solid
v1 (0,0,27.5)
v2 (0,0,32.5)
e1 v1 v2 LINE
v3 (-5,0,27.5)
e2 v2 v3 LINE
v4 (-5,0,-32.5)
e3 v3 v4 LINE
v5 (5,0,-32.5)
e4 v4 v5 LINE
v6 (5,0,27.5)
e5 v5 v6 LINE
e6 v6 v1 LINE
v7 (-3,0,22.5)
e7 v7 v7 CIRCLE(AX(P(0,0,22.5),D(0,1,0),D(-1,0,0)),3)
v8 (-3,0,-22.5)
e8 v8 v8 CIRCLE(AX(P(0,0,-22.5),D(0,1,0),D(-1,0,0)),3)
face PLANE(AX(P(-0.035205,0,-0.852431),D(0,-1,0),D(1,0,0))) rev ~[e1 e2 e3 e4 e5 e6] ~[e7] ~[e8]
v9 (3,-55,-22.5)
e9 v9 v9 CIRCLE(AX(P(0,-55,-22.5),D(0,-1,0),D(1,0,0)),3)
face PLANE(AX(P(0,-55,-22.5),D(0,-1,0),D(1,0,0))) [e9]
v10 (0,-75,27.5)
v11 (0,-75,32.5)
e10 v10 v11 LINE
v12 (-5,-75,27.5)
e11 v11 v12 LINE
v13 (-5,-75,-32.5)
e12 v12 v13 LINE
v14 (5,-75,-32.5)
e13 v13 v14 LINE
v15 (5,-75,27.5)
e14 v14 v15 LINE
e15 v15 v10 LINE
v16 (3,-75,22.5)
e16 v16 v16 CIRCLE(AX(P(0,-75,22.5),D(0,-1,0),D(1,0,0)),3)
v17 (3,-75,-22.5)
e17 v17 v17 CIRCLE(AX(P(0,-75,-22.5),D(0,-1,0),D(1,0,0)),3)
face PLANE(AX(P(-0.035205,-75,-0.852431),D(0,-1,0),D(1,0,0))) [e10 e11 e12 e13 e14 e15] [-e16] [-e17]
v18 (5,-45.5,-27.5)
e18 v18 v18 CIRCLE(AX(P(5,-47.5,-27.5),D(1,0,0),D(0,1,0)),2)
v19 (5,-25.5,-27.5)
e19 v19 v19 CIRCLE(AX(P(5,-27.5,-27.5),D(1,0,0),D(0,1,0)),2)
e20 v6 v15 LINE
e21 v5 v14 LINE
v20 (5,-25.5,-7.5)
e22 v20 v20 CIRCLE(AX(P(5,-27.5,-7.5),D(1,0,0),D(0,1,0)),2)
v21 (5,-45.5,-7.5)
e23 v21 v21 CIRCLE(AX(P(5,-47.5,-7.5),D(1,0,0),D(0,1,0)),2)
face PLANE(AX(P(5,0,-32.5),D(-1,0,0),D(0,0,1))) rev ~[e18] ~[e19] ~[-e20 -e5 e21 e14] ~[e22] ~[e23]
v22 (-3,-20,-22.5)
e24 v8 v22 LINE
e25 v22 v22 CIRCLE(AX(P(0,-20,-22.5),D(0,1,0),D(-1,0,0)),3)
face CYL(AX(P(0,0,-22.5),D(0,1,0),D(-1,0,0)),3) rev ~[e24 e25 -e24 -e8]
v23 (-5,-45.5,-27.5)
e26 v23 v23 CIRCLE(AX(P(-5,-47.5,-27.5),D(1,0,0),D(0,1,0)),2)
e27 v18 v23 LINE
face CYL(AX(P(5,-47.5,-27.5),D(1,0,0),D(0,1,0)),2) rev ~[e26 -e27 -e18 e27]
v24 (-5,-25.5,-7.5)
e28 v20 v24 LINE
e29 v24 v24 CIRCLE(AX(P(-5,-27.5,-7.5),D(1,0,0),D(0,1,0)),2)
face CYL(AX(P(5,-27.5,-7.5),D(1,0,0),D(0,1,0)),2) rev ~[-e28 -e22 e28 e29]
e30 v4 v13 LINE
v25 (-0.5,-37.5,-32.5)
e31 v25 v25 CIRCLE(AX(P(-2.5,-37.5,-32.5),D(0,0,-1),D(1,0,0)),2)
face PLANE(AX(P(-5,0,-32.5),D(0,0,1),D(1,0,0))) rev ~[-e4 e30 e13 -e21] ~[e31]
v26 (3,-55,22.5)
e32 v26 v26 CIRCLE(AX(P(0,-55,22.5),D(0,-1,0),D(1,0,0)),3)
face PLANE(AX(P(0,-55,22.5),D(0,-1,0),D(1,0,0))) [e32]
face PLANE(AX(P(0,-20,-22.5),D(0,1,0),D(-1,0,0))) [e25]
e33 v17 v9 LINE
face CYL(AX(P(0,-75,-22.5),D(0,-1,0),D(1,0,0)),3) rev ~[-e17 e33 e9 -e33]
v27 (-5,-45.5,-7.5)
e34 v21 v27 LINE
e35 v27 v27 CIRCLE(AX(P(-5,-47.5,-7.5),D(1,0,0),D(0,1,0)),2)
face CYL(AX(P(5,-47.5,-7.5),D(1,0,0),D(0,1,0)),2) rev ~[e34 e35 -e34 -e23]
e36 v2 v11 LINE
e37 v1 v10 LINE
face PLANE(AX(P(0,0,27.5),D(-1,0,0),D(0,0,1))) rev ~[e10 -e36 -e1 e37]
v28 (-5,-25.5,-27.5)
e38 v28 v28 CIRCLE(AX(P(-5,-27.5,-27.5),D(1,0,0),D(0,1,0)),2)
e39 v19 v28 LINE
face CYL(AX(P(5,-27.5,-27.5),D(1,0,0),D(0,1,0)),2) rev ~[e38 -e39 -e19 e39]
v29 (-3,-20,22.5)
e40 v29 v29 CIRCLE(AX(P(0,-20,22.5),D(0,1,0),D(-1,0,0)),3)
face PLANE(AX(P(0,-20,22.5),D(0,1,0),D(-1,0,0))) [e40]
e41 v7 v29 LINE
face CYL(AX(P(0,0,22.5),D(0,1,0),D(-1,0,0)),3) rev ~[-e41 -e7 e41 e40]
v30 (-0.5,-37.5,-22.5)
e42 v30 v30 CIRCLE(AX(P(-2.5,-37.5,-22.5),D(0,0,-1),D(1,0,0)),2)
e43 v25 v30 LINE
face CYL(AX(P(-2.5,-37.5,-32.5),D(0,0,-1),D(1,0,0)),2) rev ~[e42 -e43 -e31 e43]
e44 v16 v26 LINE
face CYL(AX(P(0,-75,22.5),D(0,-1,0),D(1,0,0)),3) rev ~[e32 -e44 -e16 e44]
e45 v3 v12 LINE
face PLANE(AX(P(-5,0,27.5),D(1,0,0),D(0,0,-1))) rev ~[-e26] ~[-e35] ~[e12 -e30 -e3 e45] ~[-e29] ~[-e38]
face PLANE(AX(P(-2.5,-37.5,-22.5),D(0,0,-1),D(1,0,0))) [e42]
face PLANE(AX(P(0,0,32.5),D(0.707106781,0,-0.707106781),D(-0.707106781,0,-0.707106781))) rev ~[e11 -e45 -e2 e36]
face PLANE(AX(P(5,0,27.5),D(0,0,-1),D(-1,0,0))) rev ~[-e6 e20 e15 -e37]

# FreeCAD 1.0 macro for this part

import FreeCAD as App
import Part
import Sketcher
Q = App.Units.Quantity

doc = App.newDocument("Part")
body = doc.addObject("PartDesign::Body", "Body")

# Sketch on XZ plane
sketch1 = body.newObject("Sketcher::SketchObject", "Sketch")
sketch1.AttachmentSupport = (doc.getObject("XZ_Plane"), [""])
sketch1.MapMode = "FlatFace"
sketch1.addGeometry(Part.LineSegment(App.Vector(-5, 28, 0), App.Vector(-5, -32, 0)), False)
sketch1.addGeometry(Part.LineSegment(App.Vector(-5, -32, 0), App.Vector(5, -32, 0)), False)
sketch1.addGeometry(Part.LineSegment(App.Vector(5, -32, 0), App.Vector(5, 28, 0)), False)
sketch1.addGeometry(Part.LineSegment(App.Vector(5, 28, 0), App.Vector(0, 28, 0)), False)
sketch1.addGeometry(Part.LineSegment(App.Vector(0, 28, 0), App.Vector(0, 32, 0)), False)
sketch1.addGeometry(Part.LineSegment(App.Vector(0, 32, 0), App.Vector(-5, 28, 0)), False)
sketch1.addConstraint(Sketcher.Constraint("Coincident", 0, 2, 1, 1))
sketch1.addConstraint(Sketcher.Constraint("Coincident", 1, 2, 2, 1))
sketch1.addConstraint(Sketcher.Constraint("Coincident", 2, 2, 3, 1))
sketch1.addConstraint(Sketcher.Constraint("Coincident", 3, 2, 4, 1))
sketch1.addConstraint(Sketcher.Constraint("Coincident", 4, 2, 5, 1))
sketch1.addConstraint(Sketcher.Constraint("Coincident", 5, 2, 0, 1))
sketch1.addConstraint(Sketcher.Constraint("Vertical", 0))
sketch1.addConstraint(Sketcher.Constraint("Horizontal", 1))
sketch1.addConstraint(Sketcher.Constraint("Vertical", 2))
sketch1.addConstraint(Sketcher.Constraint("Horizontal", 3))
sketch1.addConstraint(Sketcher.Constraint("Vertical", 4))
sketch1.addConstraint(Sketcher.Constraint("Symmetric", 2, 2, 5, 2, -2))
sketch1.addConstraint(Sketcher.Constraint("PointOnObject", 3, 2, -2))
sketch1.addConstraint(Sketcher.Constraint("Equal", 3, 4))
sketch1.addConstraint(Sketcher.Constraint("DistanceX", 1, 1, 1, 2, Q("10 mm")))
sketch1.addConstraint(Sketcher.Constraint("DistanceY", 0, 2, 0, 1, Q("60 mm")))
sketch1.addConstraint(Sketcher.Constraint("DistanceY", 0, 2, -1, 1, Q("32.5 mm")))
pad1 = body.newObject("PartDesign::Pad", "Pad")
pad1.Profile = sketch1
pad1.Length = 75

# Sketch on YZ plane
sketch2 = body.newObject("Sketcher::SketchObject", "Sketch001")
sketch2.AttachmentSupport = (doc.getObject("YZ_Plane"), [""])
sketch2.MapMode = "FlatFace"
sketch2.AttachmentOffset = App.Placement(App.Vector(0, 0, 5), App.Rotation())
sketch2.addGeometry(Part.Circle(App.Vector(-47.5, -27.5, 0), App.Vector(0, 0, 1), 2), False)
sketch2.addGeometry(Part.Circle(App.Vector(-47.5, -7.5, 0), App.Vector(0, 0, 1), 2), False)
sketch2.addGeometry(Part.Circle(App.Vector(-27.5, -7.5, 0), App.Vector(0, 0, 1), 2), False)
sketch2.addGeometry(Part.Circle(App.Vector(-27.5, -27.5, 0), App.Vector(0, 0, 1), 2), False)
sketch2.addConstraint(Sketcher.Constraint("Equal", 0, 1))
sketch2.addConstraint(Sketcher.Constraint("Equal", 1, 2))
sketch2.addConstraint(Sketcher.Constraint("Equal", 2, 3))
sketch2.addConstraint(Sketcher.Constraint("Horizontal", 1, 3, 2, 3))
sketch2.addConstraint(Sketcher.Constraint("Horizontal", 0, 3, 3, 3))
sketch2.addConstraint(Sketcher.Constraint("Vertical", 0, 3, 1, 3))
sketch2.addConstraint(Sketcher.Constraint("Vertical", 2, 3, 3, 3))
sketch2.addConstraint(Sketcher.Constraint("Diameter", 0, Q("4 mm")))
sketch2.addConstraint(Sketcher.Constraint("DistanceY", 0, 3, 1, 3, Q("20 mm")))
sketch2.addConstraint(Sketcher.Constraint("DistanceX", 1, 3, 2, 3, Q("20 mm")))
sketch2.addConstraint(Sketcher.Constraint("DistanceX", 0, 3, -1, 1, Q("47.5 mm")))
sketch2.addConstraint(Sketcher.Constraint("DistanceY", 0, 3, -1, 1, Q("27.5 mm")))
pocket1 = body.newObject("PartDesign::Pocket", "Pocket")
pocket1.Profile = sketch2
pocket1.Length = 25

# Sketch on XZ plane
sketch3 = body.newObject("Sketcher::SketchObject", "Sketch002")
sketch3.AttachmentSupport = (doc.getObject("XZ_Plane"), [""])
sketch3.MapMode = "FlatFace"
sketch3.addGeometry(Part.Circle(App.Vector(0, -22.5, 0), App.Vector(0, 0, 1), 3), False)
sketch3.addConstraint(Sketcher.Constraint("PointOnObject", 0, 3, -2))
sketch3.addConstraint(Sketcher.Constraint("Diameter", 0, Q("6 mm")))
sketch3.addConstraint(Sketcher.Constraint("DistanceY", 0, 3, -1, 1, Q("22.5 mm")))
pocket2 = body.newObject("PartDesign::Pocket", "Pocket001")
pocket2.Profile = sketch3
pocket2.Length = 20
pocket2.Reversed = True

# Sketch on XZ plane
sketch4 = body.newObject("Sketcher::SketchObject", "Sketch003")
sketch4.AttachmentSupport = (doc.getObject("XZ_Plane"), [""])
sketch4.MapMode = "FlatFace"
sketch4.AttachmentOffset = App.Placement(App.Vector(0, 0, 75), App.Rotation())
sketch4.addGeometry(Part.Circle(App.Vector(0, 22.5, 0), App.Vector(0, 0, 1), 3), False)
sketch4.addConstraint(Sketcher.Constraint("PointOnObject", 0, 3, -2))
sketch4.addConstraint(Sketcher.Constraint("Diameter", 0, Q("6 mm")))
sketch4.addConstraint(Sketcher.Constraint("DistanceY", -1, 1, 0, 3, Q("22.5 mm")))
pocket3 = body.newObject("PartDesign::Pocket", "Pocket002")
pocket3.Profile = sketch4
pocket3.Length = 20

# Sketch on XZ plane
sketch5 = body.newObject("Sketcher::SketchObject", "Sketch004")
sketch5.AttachmentSupport = (doc.getObject("XZ_Plane"), [""])
sketch5.MapMode = "FlatFace"
sketch5.AttachmentOffset = App.Placement(App.Vector(0, 0, 75), App.Rotation())
sketch5.addGeometry(Part.Circle(App.Vector(0, -22.5, 0), App.Vector(0, 0, 1), 3), False)
sketch5.addConstraint(Sketcher.Constraint("PointOnObject", 0, 3, -2))
sketch5.addConstraint(Sketcher.Constraint("Diameter", 0, Q("6 mm")))
sketch5.addConstraint(Sketcher.Constraint("DistanceY", 0, 3, -1, 1, Q("22.5 mm")))
pocket4 = body.newObject("PartDesign::Pocket", "Pocket003")
pocket4.Profile = sketch5
pocket4.Length = 20

# Sketch on XZ plane
sketch6 = body.newObject("Sketcher::SketchObject", "Sketch005")
sketch6.AttachmentSupport = (doc.getObject("XZ_Plane"), [""])
sketch6.MapMode = "FlatFace"
sketch6.addGeometry(Part.Circle(App.Vector(0, 22.5, 0), App.Vector(0, 0, 1), 3), False)
sketch6.addConstraint(Sketcher.Constraint("PointOnObject", 0, 3, -2))
sketch6.addConstraint(Sketcher.Constraint("Diameter", 0, Q("6 mm")))
sketch6.addConstraint(Sketcher.Constraint("DistanceY", -1, 1, 0, 3, Q("22.5 mm")))
pocket5 = body.newObject("PartDesign::Pocket", "Pocket004")
pocket5.Profile = sketch6
pocket5.Length = 20
pocket5.Reversed = True

# Sketch on XY plane
sketch7 = body.newObject("Sketcher::SketchObject", "Sketch006")
sketch7.AttachmentSupport = (doc.getObject("XY_Plane"), [""])
sketch7.MapMode = "FlatFace"
sketch7.AttachmentOffset = App.Placement(App.Vector(0, 0, -32.5), App.Rotation())
sketch7.addGeometry(Part.Circle(App.Vector(-2.5, -37.5, 0), App.Vector(0, 0, 1), 2), False)
sketch7.addConstraint(Sketcher.Constraint("Diameter", 0, Q("4 mm")))
sketch7.addConstraint(Sketcher.Constraint("DistanceX", 0, 3, -1, 1, Q("2.5 mm")))
sketch7.addConstraint(Sketcher.Constraint("DistanceY", 0, 3, -1, 1, Q("37.5 mm")))
pocket6 = body.newObject("PartDesign::Pocket", "Pocket005")
pocket6.Profile = sketch7
pocket6.Length = 10
pocket6.Reversed = True

# Sketch on YZ plane
sketch8 = body.newObject("Sketcher::SketchObject", "Sketch007")
sketch8.AttachmentSupport = (doc.getObject("YZ_Plane"), [""])
sketch8.MapMode = "FlatFace"
sketch8.AttachmentOffset = App.Placement(App.Vector(0, 0, 5), App.Rotation())
sketch8.addGeometry(Part.Circle(App.Vector(-47.5, -27.5, 0), App.Vector(0, 0, 1), 2), False)
sketch8.addGeometry(Part.Circle(App.Vector(-47.5, -7.5, 0), App.Vector(0, 0, 1), 2), False)
sketch8.addGeometry(Part.Circle(App.Vector(-27.5, -7.5, 0), App.Vector(0, 0, 1), 2), False)
sketch8.addGeometry(Part.Circle(App.Vector(-27.5, -27.5, 0), App.Vector(0, 0, 1), 2), False)
sketch8.addConstraint(Sketcher.Constraint("Equal", 0, 1))
sketch8.addConstraint(Sketcher.Constraint("Equal", 1, 2))
sketch8.addConstraint(Sketcher.Constraint("Equal", 2, 3))
sketch8.addConstraint(Sketcher.Constraint("Horizontal", 1, 3, 2, 3))
sketch8.addConstraint(Sketcher.Constraint("Horizontal", 0, 3, 3, 3))
sketch8.addConstraint(Sketcher.Constraint("Vertical", 0, 3, 1, 3))
sketch8.addConstraint(Sketcher.Constraint("Vertical", 2, 3, 3, 3))
sketch8.addConstraint(Sketcher.Constraint("Diameter", 0, Q("4 mm")))
sketch8.addConstraint(Sketcher.Constraint("DistanceY", 0, 3, 1, 3, Q("20 mm")))
sketch8.addConstraint(Sketcher.Constraint("DistanceX", 1, 3, 2, 3, Q("20 mm")))
sketch8.addConstraint(Sketcher.Constraint("DistanceX", 0, 3, -1, 1, Q("47.5 mm")))
sketch8.addConstraint(Sketcher.Constraint("DistanceY", 0, 3, -1, 1, Q("27.5 mm")))
pocket7 = body.newObject("PartDesign::Pocket", "Pocket006")
pocket7.Profile = sketch8
pocket7.Length = 25

doc.recompute()
